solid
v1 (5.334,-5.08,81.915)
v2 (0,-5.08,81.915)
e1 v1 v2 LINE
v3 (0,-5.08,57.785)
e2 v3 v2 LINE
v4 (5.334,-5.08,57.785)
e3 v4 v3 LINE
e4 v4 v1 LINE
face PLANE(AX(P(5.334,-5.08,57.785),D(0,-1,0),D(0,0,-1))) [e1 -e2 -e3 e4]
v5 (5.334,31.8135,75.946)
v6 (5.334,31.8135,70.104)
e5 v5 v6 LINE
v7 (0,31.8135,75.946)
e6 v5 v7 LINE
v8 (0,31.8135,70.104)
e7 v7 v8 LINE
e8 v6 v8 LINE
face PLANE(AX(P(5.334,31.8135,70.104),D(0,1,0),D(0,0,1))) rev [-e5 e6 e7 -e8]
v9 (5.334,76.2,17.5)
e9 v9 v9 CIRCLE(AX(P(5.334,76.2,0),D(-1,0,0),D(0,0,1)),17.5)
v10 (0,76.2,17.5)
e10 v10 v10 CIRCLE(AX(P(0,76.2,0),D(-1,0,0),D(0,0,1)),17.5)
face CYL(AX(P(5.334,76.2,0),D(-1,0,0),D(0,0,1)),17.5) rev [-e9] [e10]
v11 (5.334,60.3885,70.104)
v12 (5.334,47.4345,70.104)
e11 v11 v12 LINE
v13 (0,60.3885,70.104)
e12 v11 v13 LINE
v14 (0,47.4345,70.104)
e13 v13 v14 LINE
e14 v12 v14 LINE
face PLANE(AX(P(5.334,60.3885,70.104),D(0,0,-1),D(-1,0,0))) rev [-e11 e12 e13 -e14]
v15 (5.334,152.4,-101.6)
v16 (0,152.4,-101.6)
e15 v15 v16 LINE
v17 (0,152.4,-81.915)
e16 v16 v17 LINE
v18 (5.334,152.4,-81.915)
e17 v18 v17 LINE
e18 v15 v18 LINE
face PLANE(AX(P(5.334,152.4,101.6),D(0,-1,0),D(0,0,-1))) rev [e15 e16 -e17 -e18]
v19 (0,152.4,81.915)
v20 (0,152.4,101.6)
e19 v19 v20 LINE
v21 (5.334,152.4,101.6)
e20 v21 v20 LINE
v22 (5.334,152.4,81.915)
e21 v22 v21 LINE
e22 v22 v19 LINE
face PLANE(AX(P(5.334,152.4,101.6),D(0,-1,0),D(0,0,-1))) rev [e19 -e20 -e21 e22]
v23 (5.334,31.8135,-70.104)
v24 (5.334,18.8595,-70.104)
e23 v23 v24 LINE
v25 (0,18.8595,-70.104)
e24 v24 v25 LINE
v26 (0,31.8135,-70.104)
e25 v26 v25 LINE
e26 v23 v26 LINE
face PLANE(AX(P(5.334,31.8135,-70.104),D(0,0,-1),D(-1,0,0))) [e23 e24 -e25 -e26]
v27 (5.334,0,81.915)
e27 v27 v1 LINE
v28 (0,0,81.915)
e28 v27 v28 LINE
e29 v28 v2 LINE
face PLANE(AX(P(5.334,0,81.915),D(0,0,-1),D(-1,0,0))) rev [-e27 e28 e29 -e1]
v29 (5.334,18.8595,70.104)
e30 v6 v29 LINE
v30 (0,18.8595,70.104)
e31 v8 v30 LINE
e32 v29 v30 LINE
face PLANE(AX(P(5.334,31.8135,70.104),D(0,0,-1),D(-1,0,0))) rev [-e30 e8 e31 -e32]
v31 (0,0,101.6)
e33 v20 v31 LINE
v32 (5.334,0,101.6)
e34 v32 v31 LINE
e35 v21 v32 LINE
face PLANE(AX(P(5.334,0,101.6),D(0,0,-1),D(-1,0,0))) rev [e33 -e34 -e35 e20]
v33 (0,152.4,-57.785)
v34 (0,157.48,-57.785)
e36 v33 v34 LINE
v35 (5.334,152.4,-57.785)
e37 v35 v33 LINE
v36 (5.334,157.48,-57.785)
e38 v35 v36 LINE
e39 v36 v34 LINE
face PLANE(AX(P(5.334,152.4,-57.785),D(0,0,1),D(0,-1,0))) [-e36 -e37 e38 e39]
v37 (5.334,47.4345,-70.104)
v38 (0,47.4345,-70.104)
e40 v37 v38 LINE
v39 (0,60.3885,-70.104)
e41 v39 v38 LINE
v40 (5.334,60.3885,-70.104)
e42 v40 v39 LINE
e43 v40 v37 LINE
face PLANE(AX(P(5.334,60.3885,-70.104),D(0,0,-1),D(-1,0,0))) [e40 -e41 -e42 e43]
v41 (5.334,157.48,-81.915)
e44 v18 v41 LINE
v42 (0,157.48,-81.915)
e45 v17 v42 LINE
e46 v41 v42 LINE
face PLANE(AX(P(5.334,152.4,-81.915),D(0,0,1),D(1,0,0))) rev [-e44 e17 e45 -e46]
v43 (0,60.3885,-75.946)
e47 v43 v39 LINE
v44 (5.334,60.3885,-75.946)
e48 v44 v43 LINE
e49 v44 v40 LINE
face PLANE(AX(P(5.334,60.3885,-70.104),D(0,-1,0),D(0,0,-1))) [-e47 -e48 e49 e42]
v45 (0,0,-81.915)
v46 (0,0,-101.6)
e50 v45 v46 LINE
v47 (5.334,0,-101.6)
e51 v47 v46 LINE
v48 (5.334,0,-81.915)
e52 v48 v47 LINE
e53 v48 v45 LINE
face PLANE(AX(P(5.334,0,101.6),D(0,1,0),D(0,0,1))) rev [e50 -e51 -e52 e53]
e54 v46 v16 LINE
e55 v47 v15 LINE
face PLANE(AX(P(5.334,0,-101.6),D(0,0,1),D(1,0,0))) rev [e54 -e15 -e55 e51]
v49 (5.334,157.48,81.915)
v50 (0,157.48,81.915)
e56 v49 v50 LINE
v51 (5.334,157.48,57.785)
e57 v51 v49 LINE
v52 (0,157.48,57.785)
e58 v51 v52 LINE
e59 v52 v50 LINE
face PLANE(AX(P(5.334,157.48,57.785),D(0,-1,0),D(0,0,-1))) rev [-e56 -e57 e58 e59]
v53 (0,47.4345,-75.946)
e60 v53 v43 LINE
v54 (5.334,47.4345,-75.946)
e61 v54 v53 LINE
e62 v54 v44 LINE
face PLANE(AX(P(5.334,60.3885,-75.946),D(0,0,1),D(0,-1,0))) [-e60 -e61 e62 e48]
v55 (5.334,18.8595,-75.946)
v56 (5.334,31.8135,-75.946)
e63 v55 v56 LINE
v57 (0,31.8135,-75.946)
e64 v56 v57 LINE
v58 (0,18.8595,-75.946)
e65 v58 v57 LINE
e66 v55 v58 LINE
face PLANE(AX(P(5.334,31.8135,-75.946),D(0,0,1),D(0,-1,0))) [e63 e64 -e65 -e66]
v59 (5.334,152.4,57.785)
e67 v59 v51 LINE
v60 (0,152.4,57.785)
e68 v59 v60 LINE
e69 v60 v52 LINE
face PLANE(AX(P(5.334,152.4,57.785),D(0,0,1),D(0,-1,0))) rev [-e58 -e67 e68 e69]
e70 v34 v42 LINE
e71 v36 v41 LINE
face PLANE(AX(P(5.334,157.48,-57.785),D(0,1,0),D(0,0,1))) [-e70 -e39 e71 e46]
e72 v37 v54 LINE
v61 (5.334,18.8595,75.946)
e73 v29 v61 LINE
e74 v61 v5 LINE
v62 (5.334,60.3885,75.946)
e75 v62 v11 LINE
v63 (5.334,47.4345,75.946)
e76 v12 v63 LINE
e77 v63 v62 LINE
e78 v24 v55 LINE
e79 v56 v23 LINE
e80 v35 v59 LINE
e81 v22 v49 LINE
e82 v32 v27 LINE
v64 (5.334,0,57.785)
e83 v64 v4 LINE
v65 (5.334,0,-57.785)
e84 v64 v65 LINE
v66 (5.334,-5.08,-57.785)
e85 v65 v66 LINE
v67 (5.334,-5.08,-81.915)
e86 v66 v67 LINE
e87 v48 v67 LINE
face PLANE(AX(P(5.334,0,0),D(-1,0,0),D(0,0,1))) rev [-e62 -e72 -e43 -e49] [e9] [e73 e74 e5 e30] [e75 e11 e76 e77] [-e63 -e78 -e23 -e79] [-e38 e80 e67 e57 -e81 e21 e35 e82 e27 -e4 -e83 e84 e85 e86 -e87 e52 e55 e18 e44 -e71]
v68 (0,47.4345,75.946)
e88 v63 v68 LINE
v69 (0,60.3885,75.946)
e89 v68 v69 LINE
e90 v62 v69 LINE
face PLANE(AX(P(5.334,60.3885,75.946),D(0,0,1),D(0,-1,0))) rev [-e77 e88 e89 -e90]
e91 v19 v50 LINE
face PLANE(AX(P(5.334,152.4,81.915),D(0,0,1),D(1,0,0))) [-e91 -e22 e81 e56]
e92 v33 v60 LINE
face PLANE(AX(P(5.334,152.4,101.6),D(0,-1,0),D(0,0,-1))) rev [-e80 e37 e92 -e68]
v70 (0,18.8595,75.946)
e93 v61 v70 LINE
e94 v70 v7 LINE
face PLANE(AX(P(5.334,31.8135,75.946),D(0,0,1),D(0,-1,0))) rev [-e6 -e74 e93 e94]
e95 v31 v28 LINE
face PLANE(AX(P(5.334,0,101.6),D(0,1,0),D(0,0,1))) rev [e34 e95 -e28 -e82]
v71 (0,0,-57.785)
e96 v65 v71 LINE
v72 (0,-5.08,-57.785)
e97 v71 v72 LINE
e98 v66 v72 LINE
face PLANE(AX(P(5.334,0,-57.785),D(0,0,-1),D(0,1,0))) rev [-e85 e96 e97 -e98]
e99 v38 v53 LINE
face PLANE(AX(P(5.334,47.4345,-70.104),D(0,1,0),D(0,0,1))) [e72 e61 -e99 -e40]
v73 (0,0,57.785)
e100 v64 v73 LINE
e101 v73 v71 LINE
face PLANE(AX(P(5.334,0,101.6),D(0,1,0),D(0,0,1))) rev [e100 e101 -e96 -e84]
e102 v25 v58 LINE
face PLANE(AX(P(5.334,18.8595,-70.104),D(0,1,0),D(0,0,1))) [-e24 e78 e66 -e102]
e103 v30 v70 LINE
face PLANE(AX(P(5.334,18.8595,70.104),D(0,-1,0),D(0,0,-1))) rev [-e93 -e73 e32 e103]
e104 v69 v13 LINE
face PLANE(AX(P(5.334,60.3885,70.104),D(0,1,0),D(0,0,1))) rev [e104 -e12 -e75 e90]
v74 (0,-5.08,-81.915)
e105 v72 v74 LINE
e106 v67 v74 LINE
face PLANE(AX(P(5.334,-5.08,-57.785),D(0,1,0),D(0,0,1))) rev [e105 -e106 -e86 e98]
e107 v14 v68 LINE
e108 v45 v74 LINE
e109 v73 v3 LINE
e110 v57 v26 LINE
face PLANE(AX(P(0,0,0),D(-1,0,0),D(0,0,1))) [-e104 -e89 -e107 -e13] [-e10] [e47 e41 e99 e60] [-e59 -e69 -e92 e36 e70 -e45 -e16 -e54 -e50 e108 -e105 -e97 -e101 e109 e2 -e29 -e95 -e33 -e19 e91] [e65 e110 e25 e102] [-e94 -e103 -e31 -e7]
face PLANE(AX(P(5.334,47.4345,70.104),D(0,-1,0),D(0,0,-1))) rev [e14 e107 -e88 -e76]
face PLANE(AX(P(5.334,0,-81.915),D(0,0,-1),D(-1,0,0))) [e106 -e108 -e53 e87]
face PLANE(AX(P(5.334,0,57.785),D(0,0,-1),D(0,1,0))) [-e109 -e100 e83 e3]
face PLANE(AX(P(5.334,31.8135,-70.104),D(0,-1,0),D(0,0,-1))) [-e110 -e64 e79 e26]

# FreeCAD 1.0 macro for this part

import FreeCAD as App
import Part
import Sketcher
from FreeCAD import Vector
Q = App.Units.Quantity


def add_polygon(sketch, points):
    """Adds a closed chain of lines whose ends are joined by coincident constraints."""
    first, n = sketch.GeometryCount, len(points)
    for a, b in zip(points, points[1:] + points[:1]):
        sketch.addGeometry(Part.LineSegment(App.Vector(*a, 0), App.Vector(*b, 0)), False)
    for i in range(n):
        sketch.addConstraint(Sketcher.Constraint("Coincident", first + i, 2, first + (i + 1) % n, 1))

doc = App.newDocument("Part")
body = doc.addObject("PartDesign::Body", "Body")

sketch1 = body.newObject("Sketcher::SketchObject", "Sketch")
sketch1.AttachmentSupport = (doc.getObject("YZ_Plane"), [""])
sketch1.MapMode = "FlatFace"
add_polygon(sketch1, [(152, 102), (0, 102), (0, -102), (152, -102)])
sketch1.addConstraint([
    Sketcher.Constraint("Horizontal", 0),
    Sketcher.Constraint("Vertical", 1),
    Sketcher.Constraint("Horizontal", 2),
    Sketcher.Constraint("Vertical", 3),
    Sketcher.Constraint("Symmetric", 0, 2, 1, 2, -1, 1),
    Sketcher.Constraint("DistanceX", 0, 2, 0, 1, Q("6 in")),
    Sketcher.Constraint("DistanceY", 1, 2, 1, 1, Q("8 in")),
])
pad1 = body.newObject("PartDesign::Pad", "Pad")
pad1.Profile = sketch1
pad1.Length = Q("0.21 in")

sketch2 = body.newObject("Sketcher::SketchObject", "Sketch001")
sketch2.AttachmentSupport = (doc.getObject("YZ_Plane"), [""])
sketch2.MapMode = "FlatFace"
sketch2.addGeometry(Part.Circle(Vector(76, 0, 0), Vector(0, 0, 1), 18), False)
sketch2.addConstraint([
    Sketcher.Constraint("PointOnObject", 0, 3, -1),
    Sketcher.Constraint("DistanceX", -1, 1, 0, 3, Q("3 in")),
    Sketcher.Constraint("Diameter", 0, Q("35 mm")),
])
pocket1 = body.newObject("PartDesign::Pocket", "Pocket")
pocket1.Profile = sketch2
pocket1.Type = "ThroughAll"
pocket1.Reversed = True

sketch3 = body.newObject("Sketcher::SketchObject", "Sketch002")
sketch3.AttachmentSupport = (doc.getObject("YZ_Plane"), [""])
sketch3.MapMode = "FlatFace"
add_polygon(sketch3, [(0, 58), (-5, 58), (-5, 82), (0, 82)])
sketch3.addConstraint([
    Sketcher.Constraint("Horizontal", 0),
    Sketcher.Constraint("Vertical", 1),
    Sketcher.Constraint("Horizontal", 2),
    Sketcher.Constraint("Vertical", 3),
    Sketcher.Constraint("PointOnObject", 2, 2, -2),
    Sketcher.Constraint("DistanceX", 0, 2, 0, 1, Q("0.2 in")),
    Sketcher.Constraint("DistanceY", 1, 1, 1, 2, Q("0.95 in")),
    Sketcher.Constraint("DistanceY", -1, 1, 0, 2, Q("2.275 in")),
])
pad2 = body.newObject("PartDesign::Pad", "Pad001")
pad2.Profile = sketch3
pad2.Length = Q("0.21 in")
doc.recompute()

mirrored = body.newObject("PartDesign::Mirrored", "Mirrored")
mirrored.Originals = [pad2]
mirrored.MirrorPlane = (doc.getObject("XY_Plane"), [""])
body.Tip = mirrored

sketch4 = body.newObject("Sketcher::SketchObject", "Sketch003")
sketch4.AttachmentSupport = (doc.getObject("YZ_Plane"), [""])
sketch4.MapMode = "FlatFace"
add_polygon(sketch4, [(60, 70), (47, 70), (47, 76), (60, 76)])
add_polygon(sketch4, [(32, 70), (19, 70), (19, 76), (32, 76)])
sketch4.addConstraint([
    Sketcher.Constraint("Horizontal", 0),
    Sketcher.Constraint("Vertical", 1),
    Sketcher.Constraint("Horizontal", 2),
    Sketcher.Constraint("Vertical", 3),
    Sketcher.Constraint("Horizontal", 4),
    Sketcher.Constraint("Vertical", 5),
    Sketcher.Constraint("Horizontal", 6),
    Sketcher.Constraint("Vertical", 7),
    Sketcher.Constraint("Horizontal", 3, 2, 4, 2),
    Sketcher.Constraint("Horizontal", 2, 2, 5, 2),
    Sketcher.Constraint("Equal", 2, 4),
    Sketcher.Constraint("DistanceX", 0, 2, 0, 1, Q("0.51 in")),
    Sketcher.Constraint("DistanceY", 1, 1, 1, 2, Q("0.23 in")),
    Sketcher.Constraint("DistanceY", -1, 1, 0, 2, Q("2.76 in")),
    Sketcher.Constraint("DistanceX", 4, 2, 0, 2, Q("1.125 in")),
    Sketcher.Constraint("DistanceX", -1, 1, 0, 2, Q("1.8675 in")),
])
pocket2 = body.newObject("PartDesign::Pocket", "Pocket001")
pocket2.Profile = sketch4
pocket2.Type = "ThroughAll"
pocket2.Reversed = True
doc.recompute()

mirrored2 = body.newObject("PartDesign::Mirrored", "Mirrored001")
mirrored2.Originals = [pocket2]
mirrored2.MirrorPlane = (doc.getObject("XY_Plane"), [""])
body.Tip = mirrored2
doc.recompute()

datumplane = body.newObject("PartDesign::Plane", "DatumPlane")
datumplane.AttachmentSupport = (doc.getObject("XZ_Plane"), [""])
datumplane.MapMode = "FlatFace"
datumplane.AttachmentOffset = App.Placement(Vector(0, 0, -3 * 25.4), App.Rotation())
mirrored3 = body.newObject("PartDesign::Mirrored", "Mirrored002")
mirrored3.Originals = [pad2]
mirrored3.MirrorPlane = (datumplane, [""])
body.Tip = mirrored3

sketch5 = body.newObject("Sketcher::SketchObject", "Sketch004")
sketch5.AttachmentSupport = (doc.getObject("YZ_Plane"), [""])
sketch5.MapMode = "FlatFace"
add_polygon(sketch5, [(152, -58), (157, -58), (157, -82), (152, -82)])
sketch5.addConstraint([
    Sketcher.Constraint("Horizontal", 0),
    Sketcher.Constraint("Vertical", 1),
    Sketcher.Constraint("Horizontal", 2),
    Sketcher.Constraint("Vertical", 3),
    Sketcher.Constraint("DistanceX", 0, 1, 0, 2, Q("0.2 in")),
    Sketcher.Constraint("DistanceX", -1, 1, 2, 2, Q("6 in")),
    Sketcher.Constraint("DistanceY", 1, 2, 1, 1, Q("0.95 in")),
    Sketcher.Constraint("DistanceY", 0, 2, -1, 1, Q("2.275 in")),
])
pad3 = body.newObject("PartDesign::Pad", "Pad002")
pad3.Profile = sketch5
pad3.Length = Q("0.21 in")

doc.recompute()
